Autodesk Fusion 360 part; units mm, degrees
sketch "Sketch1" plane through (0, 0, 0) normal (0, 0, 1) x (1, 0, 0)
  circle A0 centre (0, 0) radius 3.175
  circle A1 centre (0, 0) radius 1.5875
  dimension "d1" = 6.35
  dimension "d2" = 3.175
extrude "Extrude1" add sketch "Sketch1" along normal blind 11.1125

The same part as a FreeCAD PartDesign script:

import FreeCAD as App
import Part
import Sketcher
from FreeCAD import Vector
Q = App.Units.Quantity

doc = App.newDocument("Part")
params = doc.addObject("Spreadsheet::Sheet", "Params")
for row, (alias, value) in enumerate([
    ("sketch1_diameter", "0.25 in"),
    ("sketch1_diameter2", "0.125 in"),
    ("pad1_length", "0.4375 in"),
], start=1):
    params.set(f"A{row}", alias)
    params.set(f"B{row}", "=" + value)
    params.setAlias(f"B{row}", alias)

body = doc.addObject("PartDesign::Body", "Body")

# Sketch on XY plane
sketch1 = body.newObject("Sketcher::SketchObject", "Sketch")
sketch1.AttachmentSupport = (doc.getObject("XY_Plane"), [""])
sketch1.MapMode = "FlatFace"
sketch1.addGeometry([
    Part.Circle(Vector(0, 0, 0), Vector(0, 0, 1), 3.2),
    Part.Circle(Vector(0, 0, 0), Vector(0, 0, 1), 1.6),
], False)
sketch1.addConstraint([
    Sketcher.Constraint("Coincident", 0, 3, -1, 1),
    Sketcher.Constraint("Coincident", 1, 3, -1, 1),
    Sketcher.Constraint("Diameter", 0, Q("0.25 in")),
    Sketcher.Constraint("Diameter", 1, Q("0.125 in")),
])
sketch1.setExpression("Constraints[2]", "Params.sketch1_diameter")
sketch1.setExpression("Constraints[3]", "Params.sketch1_diameter2")
pad1 = body.newObject("PartDesign::Pad", "Pad")
pad1.Profile = sketch1
pad1.setExpression("Length", "Params.pad1_length")

doc.recompute()
